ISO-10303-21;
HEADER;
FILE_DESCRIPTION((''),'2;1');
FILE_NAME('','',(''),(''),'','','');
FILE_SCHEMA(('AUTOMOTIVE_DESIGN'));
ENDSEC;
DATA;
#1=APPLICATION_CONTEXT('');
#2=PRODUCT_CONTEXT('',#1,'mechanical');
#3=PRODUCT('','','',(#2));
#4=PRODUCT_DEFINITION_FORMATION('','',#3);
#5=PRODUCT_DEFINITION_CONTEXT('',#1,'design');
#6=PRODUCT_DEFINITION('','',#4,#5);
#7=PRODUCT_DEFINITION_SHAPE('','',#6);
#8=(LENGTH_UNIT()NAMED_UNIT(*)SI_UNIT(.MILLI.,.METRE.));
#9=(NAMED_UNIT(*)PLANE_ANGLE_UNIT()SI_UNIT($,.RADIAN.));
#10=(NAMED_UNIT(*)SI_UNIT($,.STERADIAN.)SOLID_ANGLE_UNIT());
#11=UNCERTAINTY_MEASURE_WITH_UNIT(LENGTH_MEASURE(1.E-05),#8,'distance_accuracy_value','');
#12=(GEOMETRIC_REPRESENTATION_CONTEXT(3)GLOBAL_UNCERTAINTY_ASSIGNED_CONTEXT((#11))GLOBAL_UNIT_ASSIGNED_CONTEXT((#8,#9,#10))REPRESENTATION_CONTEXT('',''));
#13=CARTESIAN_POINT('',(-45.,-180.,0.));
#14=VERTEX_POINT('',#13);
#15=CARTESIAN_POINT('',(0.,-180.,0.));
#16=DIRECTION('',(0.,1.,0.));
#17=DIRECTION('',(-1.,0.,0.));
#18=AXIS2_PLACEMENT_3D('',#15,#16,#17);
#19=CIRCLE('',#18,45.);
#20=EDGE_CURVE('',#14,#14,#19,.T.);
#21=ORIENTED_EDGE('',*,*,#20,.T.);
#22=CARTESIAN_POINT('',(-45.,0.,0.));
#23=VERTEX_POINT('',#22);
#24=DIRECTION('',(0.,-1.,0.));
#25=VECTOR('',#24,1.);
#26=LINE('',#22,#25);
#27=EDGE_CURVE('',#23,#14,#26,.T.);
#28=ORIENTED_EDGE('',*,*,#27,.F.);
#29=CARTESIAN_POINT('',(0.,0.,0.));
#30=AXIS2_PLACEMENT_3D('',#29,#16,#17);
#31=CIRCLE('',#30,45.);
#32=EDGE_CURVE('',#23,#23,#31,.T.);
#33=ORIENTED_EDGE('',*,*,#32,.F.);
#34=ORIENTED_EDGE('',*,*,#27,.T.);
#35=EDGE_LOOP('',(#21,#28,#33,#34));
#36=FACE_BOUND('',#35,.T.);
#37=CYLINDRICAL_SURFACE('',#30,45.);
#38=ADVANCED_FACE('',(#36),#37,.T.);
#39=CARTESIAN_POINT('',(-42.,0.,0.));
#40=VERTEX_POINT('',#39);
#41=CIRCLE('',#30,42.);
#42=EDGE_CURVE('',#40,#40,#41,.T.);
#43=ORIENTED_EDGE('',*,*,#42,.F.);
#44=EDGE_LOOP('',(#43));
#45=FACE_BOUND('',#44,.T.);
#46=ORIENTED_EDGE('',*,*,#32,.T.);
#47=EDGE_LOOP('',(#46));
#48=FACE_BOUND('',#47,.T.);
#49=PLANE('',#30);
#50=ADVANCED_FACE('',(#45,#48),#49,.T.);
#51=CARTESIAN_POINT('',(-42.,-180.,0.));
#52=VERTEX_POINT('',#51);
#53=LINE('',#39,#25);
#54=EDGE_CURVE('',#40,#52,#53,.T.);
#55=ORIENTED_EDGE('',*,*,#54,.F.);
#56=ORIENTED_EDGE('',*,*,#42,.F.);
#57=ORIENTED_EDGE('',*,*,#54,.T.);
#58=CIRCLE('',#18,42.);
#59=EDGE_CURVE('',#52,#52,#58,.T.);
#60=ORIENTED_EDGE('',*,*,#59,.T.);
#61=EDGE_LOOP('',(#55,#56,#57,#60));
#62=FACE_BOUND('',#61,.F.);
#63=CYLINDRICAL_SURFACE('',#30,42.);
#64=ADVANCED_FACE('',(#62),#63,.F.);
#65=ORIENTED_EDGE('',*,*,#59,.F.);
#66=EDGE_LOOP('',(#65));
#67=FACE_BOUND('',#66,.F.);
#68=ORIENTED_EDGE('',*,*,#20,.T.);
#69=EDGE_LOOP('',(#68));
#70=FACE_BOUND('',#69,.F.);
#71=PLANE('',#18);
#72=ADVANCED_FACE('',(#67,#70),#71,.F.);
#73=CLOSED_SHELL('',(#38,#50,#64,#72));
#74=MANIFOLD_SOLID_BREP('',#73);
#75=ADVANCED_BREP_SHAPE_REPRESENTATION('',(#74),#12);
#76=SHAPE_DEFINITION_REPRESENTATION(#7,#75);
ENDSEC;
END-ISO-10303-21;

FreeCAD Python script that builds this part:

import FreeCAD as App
import Part
import Sketcher

V = App.Vector

doc = App.newDocument("Part")
params = doc.addObject("Spreadsheet::Sheet", "Params")
for row, (alias, value) in enumerate([
    ("sketch1_diameter", "90 mm"),
    ("sketch1_diameter2", "84 mm"),
    ("pad1_length", "180 mm"),
], start=1):
    params.set(f"A{row}", alias)
    params.set(f"B{row}", "=" + value)
    params.setAlias(f"B{row}", alias)

body = doc.addObject("PartDesign::Body", "Body")

# Sketch on XZ plane
sketch1 = doc.addObject("Sketcher::SketchObject", "Sketch")
body.addObject(sketch1)
sketch1.AttachmentSupport = (doc.XZ_Plane, [""])
sketch1.MapMode = "FlatFace"
sketch1.addGeometry(Part.Circle(V(0, 0, 0), V(0, 0, 1), 45), False)
sketch1.addGeometry(Part.Circle(V(0, 0, 0), V(0, 0, 1), 42), False)
sketch1.addConstraint(Sketcher.Constraint("Coincident", 0, 3, -1, 1))
sketch1.addConstraint(Sketcher.Constraint("Coincident", 1, 3, -1, 1))
sketch1.addConstraint(Sketcher.Constraint("Diameter", 0, 90.0))
sketch1.addConstraint(Sketcher.Constraint("Diameter", 1, 84.0))
sketch1.setExpression("Constraints[2]", "Params.sketch1_diameter")
sketch1.setExpression("Constraints[3]", "Params.sketch1_diameter2")
pad1 = doc.addObject("PartDesign::Pad", "Pad")
body.addObject(pad1)
pad1.Profile = sketch1
pad1.setExpression("Length", "Params.pad1_length")

doc.recompute()
